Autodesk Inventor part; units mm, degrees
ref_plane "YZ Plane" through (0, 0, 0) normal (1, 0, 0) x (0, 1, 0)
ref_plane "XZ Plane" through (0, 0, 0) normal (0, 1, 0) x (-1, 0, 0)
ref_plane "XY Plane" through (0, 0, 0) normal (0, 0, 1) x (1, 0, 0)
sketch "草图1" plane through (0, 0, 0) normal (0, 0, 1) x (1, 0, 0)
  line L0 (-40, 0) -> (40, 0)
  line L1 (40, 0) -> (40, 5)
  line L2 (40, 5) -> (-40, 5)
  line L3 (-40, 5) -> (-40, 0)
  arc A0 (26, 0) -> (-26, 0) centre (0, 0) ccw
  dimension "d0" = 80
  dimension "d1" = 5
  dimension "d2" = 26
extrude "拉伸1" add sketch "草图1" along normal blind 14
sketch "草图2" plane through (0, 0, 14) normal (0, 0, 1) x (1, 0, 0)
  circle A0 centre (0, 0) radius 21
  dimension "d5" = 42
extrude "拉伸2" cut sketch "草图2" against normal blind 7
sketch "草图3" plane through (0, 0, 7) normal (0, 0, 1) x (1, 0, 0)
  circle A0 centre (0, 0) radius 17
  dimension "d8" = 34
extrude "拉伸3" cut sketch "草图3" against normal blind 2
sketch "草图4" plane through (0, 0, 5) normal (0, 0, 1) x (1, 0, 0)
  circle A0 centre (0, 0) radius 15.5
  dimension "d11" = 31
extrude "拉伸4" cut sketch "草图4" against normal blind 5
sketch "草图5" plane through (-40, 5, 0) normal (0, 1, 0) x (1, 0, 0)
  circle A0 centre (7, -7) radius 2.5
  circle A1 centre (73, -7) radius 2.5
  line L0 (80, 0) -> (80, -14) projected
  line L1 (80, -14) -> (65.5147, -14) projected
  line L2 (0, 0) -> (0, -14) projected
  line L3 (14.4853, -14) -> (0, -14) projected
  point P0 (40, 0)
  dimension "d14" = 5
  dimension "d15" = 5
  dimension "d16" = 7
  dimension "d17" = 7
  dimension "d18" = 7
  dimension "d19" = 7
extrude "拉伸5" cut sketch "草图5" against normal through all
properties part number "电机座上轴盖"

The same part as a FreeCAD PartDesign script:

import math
import FreeCAD as App
import Part
import Sketcher
from FreeCAD import Vector

doc = App.newDocument("Part")
body = doc.addObject("PartDesign::Body", "Body")

sketch1 = body.newObject("Sketcher::SketchObject", "Sketch")
sketch1.AttachmentSupport = (doc.getObject("XY_Plane"), [""])
sketch1.MapMode = "FlatFace"
sketch1.addGeometry(Part.LineSegment(Vector(-40, 5, 0), Vector(-40, 0, 0)), False)
sketch1.addGeometry(Part.LineSegment(Vector(-40, 0, 0), Vector(40, 0, 0)), False)
sketch1.addGeometry(Part.LineSegment(Vector(40, 0, 0), Vector(40, 5, 0)), False)
sketch1.addGeometry(Part.LineSegment(Vector(40, 5, 0), Vector(25.514702, 5, 0)), False)
sketch1.addGeometry(Part.ArcOfCircle(Part.Circle(Vector(0, 0, 0), Vector(0, 0, 1), 26), math.radians(11.087489), math.radians(168.912511)), False)
sketch1.addGeometry(Part.LineSegment(Vector(-25.514702, 5, 0), Vector(-40, 5, 0)), False)
sketch1.addConstraint(Sketcher.Constraint("Coincident", 0, 2, 1, 1))
sketch1.addConstraint(Sketcher.Constraint("Coincident", 1, 2, 2, 1))
sketch1.addConstraint(Sketcher.Constraint("Coincident", 2, 2, 3, 1))
sketch1.addConstraint(Sketcher.Constraint("Coincident", 3, 2, 4, 1))
sketch1.addConstraint(Sketcher.Constraint("Coincident", 4, 2, 5, 1))
sketch1.addConstraint(Sketcher.Constraint("Coincident", 5, 2, 0, 1))
sketch1.addConstraint(Sketcher.Constraint("Vertical", 0))
sketch1.addConstraint(Sketcher.Constraint("Horizontal", 1))
sketch1.addConstraint(Sketcher.Constraint("Vertical", 2))
sketch1.addConstraint(Sketcher.Constraint("Horizontal", 3))
sketch1.addConstraint(Sketcher.Constraint("Horizontal", 5))
sketch1.addConstraint(Sketcher.Constraint("Coincident", 4, 3, -1, 1))
sketch1.addConstraint(Sketcher.Constraint("Symmetric", 0, 2, 1, 2, -1, 1))
sketch1.addConstraint(Sketcher.Constraint("Horizontal", 3, 2, 4, 2))
sketch1.addConstraint(Sketcher.Constraint("Radius", 4, 26.0))
sketch1.addConstraint(Sketcher.Constraint("DistanceX", 1, 1, 1, 2, 80.0))
sketch1.addConstraint(Sketcher.Constraint("DistanceY", 0, 2, 0, 1, 5.0))
pad1 = body.newObject("PartDesign::Pad", "Pad")
pad1.Profile = sketch1
pad1.Length = 14

sketch2 = body.newObject("Sketcher::SketchObject", "Sketch001")
sketch2.AttachmentSupport = (doc.getObject("XY_Plane"), [""])
sketch2.MapMode = "FlatFace"
sketch2.AttachmentOffset = App.Placement(Vector(0, 0, 14), App.Rotation())
sketch2.addGeometry(Part.Circle(Vector(0, 0, 0), Vector(0, 0, 1), 21), False)
sketch2.addConstraint(Sketcher.Constraint("Coincident", 0, 3, -1, 1))
sketch2.addConstraint(Sketcher.Constraint("Diameter", 0, 42.0))
pocket1 = body.newObject("PartDesign::Pocket", "Pocket")
pocket1.Profile = sketch2
pocket1.Length = 7

sketch3 = body.newObject("Sketcher::SketchObject", "Sketch002")
sketch3.AttachmentSupport = (doc.getObject("XY_Plane"), [""])
sketch3.MapMode = "FlatFace"
sketch3.AttachmentOffset = App.Placement(Vector(0, 0, 7), App.Rotation())
sketch3.addGeometry(Part.Circle(Vector(0, 0, 0), Vector(0, 0, 1), 17), False)
sketch3.addConstraint(Sketcher.Constraint("Coincident", 0, 3, -1, 1))
sketch3.addConstraint(Sketcher.Constraint("Diameter", 0, 34.0))
pocket2 = body.newObject("PartDesign::Pocket", "Pocket001")
pocket2.Profile = sketch3
pocket2.Length = 2

sketch4 = body.newObject("Sketcher::SketchObject", "Sketch003")
sketch4.AttachmentSupport = (doc.getObject("XY_Plane"), [""])
sketch4.MapMode = "FlatFace"
sketch4.AttachmentOffset = App.Placement(Vector(0, 0, 5), App.Rotation())
sketch4.addGeometry(Part.Circle(Vector(0, 0, 0), Vector(0, 0, 1), 15.5), False)
sketch4.addConstraint(Sketcher.Constraint("Coincident", 0, 3, -1, 1))
sketch4.addConstraint(Sketcher.Constraint("Diameter", 0, 31.0))
pocket3 = body.newObject("PartDesign::Pocket", "Pocket002")
pocket3.Profile = sketch4
pocket3.Length = 5

sketch5 = body.newObject("Sketcher::SketchObject", "Sketch004")
sketch5.AttachmentSupport = (doc.getObject("XZ_Plane"), [""])
sketch5.MapMode = "FlatFace"
sketch5.AttachmentOffset = App.Placement(Vector(0, 0, -5), App.Rotation())
sketch5.addGeometry(Part.Circle(Vector(-33, 7, 0), Vector(0, 0, 1), 2.5), False)
sketch5.addGeometry(Part.Circle(Vector(33, 7, 0), Vector(0, 0, 1), 2.5), False)
sketch5.addConstraint(Sketcher.Constraint("Equal", 0, 1))
sketch5.addConstraint(Sketcher.Constraint("Symmetric", 0, 3, 1, 3, -2))
sketch5.addConstraint(Sketcher.Constraint("Diameter", 0, 5.0))
sketch5.addConstraint(Sketcher.Constraint("DistanceY", -1, 1, 0, 3, 7.0))
sketch5.addConstraint(Sketcher.Constraint("DistanceX", 0, 3, -1, 1, 33.0))
pocket4 = body.newObject("PartDesign::Pocket", "Pocket003")
pocket4.Profile = sketch5
pocket4.Type = "ThroughAll"
pocket4.Reversed = True

doc.recompute()
